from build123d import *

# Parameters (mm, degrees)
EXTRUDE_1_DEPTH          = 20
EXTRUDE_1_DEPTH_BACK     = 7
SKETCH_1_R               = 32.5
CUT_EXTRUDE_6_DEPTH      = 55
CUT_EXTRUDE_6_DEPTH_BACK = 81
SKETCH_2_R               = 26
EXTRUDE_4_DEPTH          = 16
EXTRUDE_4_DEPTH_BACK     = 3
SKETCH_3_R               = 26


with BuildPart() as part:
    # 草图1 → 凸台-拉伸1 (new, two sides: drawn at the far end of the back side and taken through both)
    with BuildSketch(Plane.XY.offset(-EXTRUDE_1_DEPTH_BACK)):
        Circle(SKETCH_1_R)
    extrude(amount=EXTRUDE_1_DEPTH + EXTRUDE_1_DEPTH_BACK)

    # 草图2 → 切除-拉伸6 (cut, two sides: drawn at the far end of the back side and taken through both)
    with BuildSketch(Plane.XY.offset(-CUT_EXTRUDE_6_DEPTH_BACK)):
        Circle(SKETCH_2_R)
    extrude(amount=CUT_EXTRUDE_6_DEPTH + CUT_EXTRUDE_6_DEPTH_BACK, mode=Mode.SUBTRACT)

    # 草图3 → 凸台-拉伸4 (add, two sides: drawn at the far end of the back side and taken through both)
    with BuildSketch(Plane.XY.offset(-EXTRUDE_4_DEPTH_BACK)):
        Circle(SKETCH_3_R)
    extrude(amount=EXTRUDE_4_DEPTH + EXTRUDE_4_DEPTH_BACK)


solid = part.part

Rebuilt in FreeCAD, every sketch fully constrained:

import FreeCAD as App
import Part
import Sketcher
from FreeCAD import Vector
Q = App.Units.Quantity

doc = App.newDocument("Part")
body = doc.addObject("PartDesign::Body", "Body")

sketch1 = body.newObject("Sketcher::SketchObject", "Sketch")
sketch1.AttachmentSupport = (doc.getObject("XY_Plane"), [""])
sketch1.MapMode = "FlatFace"
sketch1.addGeometry(Part.Circle(Vector(0, 0, 0), Vector(0, 0, 1), 32), False)
sketch1.addConstraint(Sketcher.Constraint("Coincident", 0, 3, -1, 1))
sketch1.addConstraint(Sketcher.Constraint("Diameter", 0, Q("65 mm")))
pad1 = body.newObject("PartDesign::Pad", "Pad")
pad1.Profile = sketch1
pad1.Type = "TwoLengths"
pad1.Length = 20
pad1.Length2 = 7

sketch2 = body.newObject("Sketcher::SketchObject", "Sketch001")
sketch2.AttachmentSupport = (doc.getObject("XY_Plane"), [""])
sketch2.MapMode = "FlatFace"
sketch2.addGeometry(Part.Circle(Vector(0, 0, 0), Vector(0, 0, 1), 26), False)
sketch2.addConstraint(Sketcher.Constraint("Coincident", 0, 3, -1, 1))
sketch2.addConstraint(Sketcher.Constraint("Diameter", 0, Q("52 mm")))
pocket1 = body.newObject("PartDesign::Pocket", "Pocket")
pocket1.Profile = sketch2
pocket1.Type = "ThroughAll"
pocket1.Midplane = True

sketch3 = body.newObject("Sketcher::SketchObject", "Sketch002")
sketch3.AttachmentSupport = (doc.getObject("XY_Plane"), [""])
sketch3.MapMode = "FlatFace"
sketch3.addGeometry(Part.Circle(Vector(0, 0, 0), Vector(0, 0, 1), 26), False)
sketch3.addConstraint(Sketcher.Constraint("Coincident", 0, 3, -1, 1))
sketch3.addConstraint(Sketcher.Constraint("Diameter", 0, Q("52 mm")))
pad2 = body.newObject("PartDesign::Pad", "Pad001")
pad2.Profile = sketch3
pad2.Type = "TwoLengths"
pad2.Length = 16
pad2.Length2 = 3

doc.recompute()
